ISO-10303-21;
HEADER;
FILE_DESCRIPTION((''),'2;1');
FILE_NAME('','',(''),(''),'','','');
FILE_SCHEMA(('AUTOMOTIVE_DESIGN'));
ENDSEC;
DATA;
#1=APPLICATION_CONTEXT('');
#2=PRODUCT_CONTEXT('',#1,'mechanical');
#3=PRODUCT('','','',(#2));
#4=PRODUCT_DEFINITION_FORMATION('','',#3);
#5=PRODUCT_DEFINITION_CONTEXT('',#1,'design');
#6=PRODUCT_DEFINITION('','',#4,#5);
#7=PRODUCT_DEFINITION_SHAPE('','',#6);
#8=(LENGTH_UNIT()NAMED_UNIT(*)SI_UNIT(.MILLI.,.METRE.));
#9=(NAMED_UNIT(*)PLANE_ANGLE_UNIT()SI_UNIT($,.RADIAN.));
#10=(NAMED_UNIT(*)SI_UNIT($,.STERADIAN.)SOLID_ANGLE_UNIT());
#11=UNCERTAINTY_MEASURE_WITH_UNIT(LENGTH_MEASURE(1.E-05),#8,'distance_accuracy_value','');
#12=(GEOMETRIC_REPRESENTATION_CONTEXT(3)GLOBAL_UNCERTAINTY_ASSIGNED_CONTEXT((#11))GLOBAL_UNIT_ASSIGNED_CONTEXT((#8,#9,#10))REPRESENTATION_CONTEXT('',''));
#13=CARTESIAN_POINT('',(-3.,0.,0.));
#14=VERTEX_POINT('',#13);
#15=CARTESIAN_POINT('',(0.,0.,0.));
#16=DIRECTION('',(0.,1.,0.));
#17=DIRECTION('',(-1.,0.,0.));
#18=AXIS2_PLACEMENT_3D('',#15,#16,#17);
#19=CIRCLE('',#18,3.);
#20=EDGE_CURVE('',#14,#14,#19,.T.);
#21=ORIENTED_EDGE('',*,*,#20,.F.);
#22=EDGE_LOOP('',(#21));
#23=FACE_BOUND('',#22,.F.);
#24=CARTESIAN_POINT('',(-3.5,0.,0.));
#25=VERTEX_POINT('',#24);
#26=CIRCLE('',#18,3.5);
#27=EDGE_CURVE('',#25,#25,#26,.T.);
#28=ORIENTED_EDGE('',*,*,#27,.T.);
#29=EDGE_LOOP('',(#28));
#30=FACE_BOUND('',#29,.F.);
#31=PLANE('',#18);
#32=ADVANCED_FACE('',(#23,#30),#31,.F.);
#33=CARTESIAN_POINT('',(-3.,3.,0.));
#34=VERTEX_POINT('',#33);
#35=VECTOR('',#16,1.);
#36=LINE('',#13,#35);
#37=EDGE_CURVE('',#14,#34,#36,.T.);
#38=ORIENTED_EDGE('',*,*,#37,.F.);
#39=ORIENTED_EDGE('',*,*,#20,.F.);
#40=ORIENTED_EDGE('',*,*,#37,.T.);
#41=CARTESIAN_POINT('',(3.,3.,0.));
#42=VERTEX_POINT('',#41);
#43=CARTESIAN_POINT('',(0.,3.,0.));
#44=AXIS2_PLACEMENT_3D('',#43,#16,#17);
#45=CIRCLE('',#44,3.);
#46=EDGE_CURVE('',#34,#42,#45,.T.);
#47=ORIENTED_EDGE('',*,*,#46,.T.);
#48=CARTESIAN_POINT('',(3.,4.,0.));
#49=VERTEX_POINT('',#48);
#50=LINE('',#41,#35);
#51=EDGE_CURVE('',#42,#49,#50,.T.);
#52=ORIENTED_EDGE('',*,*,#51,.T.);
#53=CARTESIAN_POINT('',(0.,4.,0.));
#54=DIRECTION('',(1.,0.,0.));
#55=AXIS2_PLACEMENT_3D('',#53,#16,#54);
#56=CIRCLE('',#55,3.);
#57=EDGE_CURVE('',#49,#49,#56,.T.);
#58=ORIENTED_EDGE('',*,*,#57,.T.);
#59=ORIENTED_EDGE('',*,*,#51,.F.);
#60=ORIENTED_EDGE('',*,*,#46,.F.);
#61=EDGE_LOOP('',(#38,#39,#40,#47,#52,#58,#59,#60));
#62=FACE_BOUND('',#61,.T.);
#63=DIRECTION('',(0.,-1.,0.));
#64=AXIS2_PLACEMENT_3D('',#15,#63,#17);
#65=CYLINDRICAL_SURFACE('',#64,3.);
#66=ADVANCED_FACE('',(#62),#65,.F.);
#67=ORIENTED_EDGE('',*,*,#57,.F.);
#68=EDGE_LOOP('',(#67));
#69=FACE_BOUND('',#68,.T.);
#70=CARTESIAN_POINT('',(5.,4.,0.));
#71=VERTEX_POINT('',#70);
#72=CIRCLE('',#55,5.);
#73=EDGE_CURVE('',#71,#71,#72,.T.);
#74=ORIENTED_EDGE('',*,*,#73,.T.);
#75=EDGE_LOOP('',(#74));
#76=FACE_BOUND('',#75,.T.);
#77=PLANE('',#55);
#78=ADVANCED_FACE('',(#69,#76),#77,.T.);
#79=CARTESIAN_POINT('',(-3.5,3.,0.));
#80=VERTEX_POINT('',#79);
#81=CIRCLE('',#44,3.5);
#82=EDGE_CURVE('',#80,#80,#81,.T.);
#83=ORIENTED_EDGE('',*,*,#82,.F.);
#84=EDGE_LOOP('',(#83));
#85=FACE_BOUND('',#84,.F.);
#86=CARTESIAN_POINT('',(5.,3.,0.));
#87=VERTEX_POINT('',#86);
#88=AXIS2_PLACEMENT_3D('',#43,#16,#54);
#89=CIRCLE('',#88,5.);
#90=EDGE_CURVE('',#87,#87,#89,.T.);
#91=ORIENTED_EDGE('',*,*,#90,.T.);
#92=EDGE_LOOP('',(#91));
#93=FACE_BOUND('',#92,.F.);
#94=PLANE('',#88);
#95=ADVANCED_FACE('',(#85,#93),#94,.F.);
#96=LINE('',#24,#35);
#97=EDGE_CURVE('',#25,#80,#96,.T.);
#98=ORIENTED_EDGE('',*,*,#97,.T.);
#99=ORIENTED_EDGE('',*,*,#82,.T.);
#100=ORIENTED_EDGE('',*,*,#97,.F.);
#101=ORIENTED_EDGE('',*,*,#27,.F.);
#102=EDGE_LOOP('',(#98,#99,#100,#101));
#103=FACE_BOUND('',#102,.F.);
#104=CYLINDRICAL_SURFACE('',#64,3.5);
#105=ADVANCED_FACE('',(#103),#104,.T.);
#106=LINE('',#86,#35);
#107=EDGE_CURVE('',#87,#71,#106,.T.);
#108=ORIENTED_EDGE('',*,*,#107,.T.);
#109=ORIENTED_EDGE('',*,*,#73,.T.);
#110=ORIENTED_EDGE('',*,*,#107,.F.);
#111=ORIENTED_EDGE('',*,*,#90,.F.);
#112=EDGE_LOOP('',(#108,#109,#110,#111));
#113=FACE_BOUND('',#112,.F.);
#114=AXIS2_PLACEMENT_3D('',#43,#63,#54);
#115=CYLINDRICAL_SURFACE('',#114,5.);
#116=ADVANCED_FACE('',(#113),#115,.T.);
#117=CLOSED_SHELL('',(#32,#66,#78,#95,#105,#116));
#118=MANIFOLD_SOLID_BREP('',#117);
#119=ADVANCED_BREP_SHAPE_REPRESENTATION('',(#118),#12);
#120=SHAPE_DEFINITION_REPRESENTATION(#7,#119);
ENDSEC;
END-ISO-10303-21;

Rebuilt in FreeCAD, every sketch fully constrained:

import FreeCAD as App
import Part
import Sketcher
Q = App.Units.Quantity

doc = App.newDocument("Part")
body = doc.addObject("PartDesign::Body", "Body")

# Sketch on XZ plane
sketch1 = body.newObject("Sketcher::SketchObject", "Sketch")
sketch1.AttachmentSupport = (doc.getObject("XZ_Plane"), [""])
sketch1.MapMode = "FlatFace"
sketch1.addGeometry(Part.Circle(App.Vector(0, 0, 0), App.Vector(0, 0, 1), 3.5), False)
sketch1.addGeometry(Part.Circle(App.Vector(0, 0, 0), App.Vector(0, 0, 1), 3), False)
sketch1.addConstraint(Sketcher.Constraint("Coincident", 0, 3, -1, 1))
sketch1.addConstraint(Sketcher.Constraint("Coincident", 1, 3, -1, 1))
sketch1.addConstraint(Sketcher.Constraint("Diameter", 0, Q("7 mm")))
sketch1.addConstraint(Sketcher.Constraint("Diameter", 1, Q("6 mm")))
pad1 = body.newObject("PartDesign::Pad", "Pad")
pad1.Profile = sketch1
pad1.Length = 3
pad1.Reversed = True

# Sketch on XZ plane
sketch2 = body.newObject("Sketcher::SketchObject", "Sketch001")
sketch2.AttachmentSupport = (doc.getObject("XZ_Plane"), [""])
sketch2.MapMode = "FlatFace"
sketch2.AttachmentOffset = App.Placement(App.Vector(0, 0, -3), App.Rotation())
sketch2.addGeometry(Part.Circle(App.Vector(0, 0, 0), App.Vector(0, 0, 1), 5), False)
sketch2.addGeometry(Part.Circle(App.Vector(0, 0, 0), App.Vector(0, 0, 1), 3), False)
sketch2.addConstraint(Sketcher.Constraint("Coincident", 0, 3, -1, 1))
sketch2.addConstraint(Sketcher.Constraint("Coincident", 1, 3, -1, 1))
sketch2.addConstraint(Sketcher.Constraint("Diameter", 0, Q("10 mm")))
sketch2.addConstraint(Sketcher.Constraint("Diameter", 1, Q("6 mm")))
pad2 = body.newObject("PartDesign::Pad", "Pad001")
pad2.Profile = sketch2
pad2.Length = 1
pad2.Reversed = True

doc.recompute()
